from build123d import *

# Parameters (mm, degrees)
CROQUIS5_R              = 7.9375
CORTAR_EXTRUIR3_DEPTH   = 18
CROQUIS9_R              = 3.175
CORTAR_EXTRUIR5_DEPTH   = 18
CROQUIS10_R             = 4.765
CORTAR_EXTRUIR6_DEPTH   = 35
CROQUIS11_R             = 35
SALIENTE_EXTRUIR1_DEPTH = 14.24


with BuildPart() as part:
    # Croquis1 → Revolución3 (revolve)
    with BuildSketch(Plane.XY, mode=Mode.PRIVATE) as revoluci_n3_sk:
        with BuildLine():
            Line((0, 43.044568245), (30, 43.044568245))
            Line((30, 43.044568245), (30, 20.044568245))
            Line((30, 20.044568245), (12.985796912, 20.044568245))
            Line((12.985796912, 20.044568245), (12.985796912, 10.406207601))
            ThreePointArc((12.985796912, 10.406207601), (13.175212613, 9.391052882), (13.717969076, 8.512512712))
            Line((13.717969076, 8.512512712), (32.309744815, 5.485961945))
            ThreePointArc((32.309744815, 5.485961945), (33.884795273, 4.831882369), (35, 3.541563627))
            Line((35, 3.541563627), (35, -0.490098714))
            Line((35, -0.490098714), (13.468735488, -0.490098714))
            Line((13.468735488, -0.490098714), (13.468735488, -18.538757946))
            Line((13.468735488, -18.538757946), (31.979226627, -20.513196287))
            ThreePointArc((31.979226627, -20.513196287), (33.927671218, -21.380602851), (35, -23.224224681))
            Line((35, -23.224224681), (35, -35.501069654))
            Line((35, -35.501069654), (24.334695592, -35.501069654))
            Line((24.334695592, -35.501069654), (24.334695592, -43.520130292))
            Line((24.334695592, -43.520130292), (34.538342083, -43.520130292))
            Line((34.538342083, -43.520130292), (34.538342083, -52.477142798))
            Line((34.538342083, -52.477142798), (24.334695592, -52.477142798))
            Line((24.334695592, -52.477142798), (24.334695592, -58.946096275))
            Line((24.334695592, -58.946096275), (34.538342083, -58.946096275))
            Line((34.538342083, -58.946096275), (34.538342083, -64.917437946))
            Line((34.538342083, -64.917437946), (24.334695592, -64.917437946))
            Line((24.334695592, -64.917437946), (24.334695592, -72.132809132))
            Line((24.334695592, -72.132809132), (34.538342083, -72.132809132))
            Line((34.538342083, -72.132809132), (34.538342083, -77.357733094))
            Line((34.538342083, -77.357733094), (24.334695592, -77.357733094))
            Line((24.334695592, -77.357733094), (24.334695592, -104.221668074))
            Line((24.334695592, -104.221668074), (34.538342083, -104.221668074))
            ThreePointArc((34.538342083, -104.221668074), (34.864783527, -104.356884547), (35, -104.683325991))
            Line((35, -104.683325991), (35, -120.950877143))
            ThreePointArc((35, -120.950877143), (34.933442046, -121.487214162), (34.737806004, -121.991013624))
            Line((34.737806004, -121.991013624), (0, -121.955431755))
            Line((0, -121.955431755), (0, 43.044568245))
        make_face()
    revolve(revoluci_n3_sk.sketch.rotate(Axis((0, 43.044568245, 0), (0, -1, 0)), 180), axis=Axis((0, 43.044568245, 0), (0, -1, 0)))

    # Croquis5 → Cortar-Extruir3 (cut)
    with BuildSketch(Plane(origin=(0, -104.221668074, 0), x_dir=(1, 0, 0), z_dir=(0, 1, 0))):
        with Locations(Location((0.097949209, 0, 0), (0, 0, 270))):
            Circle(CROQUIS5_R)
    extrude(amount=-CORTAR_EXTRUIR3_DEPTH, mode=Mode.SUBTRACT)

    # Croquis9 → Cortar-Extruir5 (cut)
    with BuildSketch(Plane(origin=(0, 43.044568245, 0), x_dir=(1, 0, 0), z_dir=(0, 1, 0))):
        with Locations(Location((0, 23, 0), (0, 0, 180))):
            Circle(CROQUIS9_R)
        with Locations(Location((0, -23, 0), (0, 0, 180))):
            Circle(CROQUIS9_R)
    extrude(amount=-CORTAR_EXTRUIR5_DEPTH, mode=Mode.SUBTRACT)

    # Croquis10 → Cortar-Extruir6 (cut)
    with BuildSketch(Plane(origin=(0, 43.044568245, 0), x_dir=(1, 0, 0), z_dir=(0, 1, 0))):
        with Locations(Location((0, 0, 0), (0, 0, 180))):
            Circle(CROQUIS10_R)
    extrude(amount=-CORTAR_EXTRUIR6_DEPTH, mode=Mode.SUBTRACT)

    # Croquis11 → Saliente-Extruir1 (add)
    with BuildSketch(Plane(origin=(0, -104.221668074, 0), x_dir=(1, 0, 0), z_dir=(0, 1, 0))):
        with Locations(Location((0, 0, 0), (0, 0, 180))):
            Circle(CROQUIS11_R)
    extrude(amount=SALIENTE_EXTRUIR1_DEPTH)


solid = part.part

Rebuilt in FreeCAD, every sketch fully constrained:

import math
import FreeCAD as App
import Part
import Sketcher

doc = App.newDocument("Part")
body = doc.addObject("PartDesign::Body", "Body")

# Sketch on XY plane
sketch1 = doc.addObject("Sketcher::SketchObject", "Sketch")
body.addObject(sketch1)
sketch1.AttachmentSupport = (doc.XY_Plane, [""])
sketch1.MapMode = "FlatFace"
sketch1.addGeometry(Part.LineSegment(App.Vector(30, 43.04, 0), App.Vector(0, 43.04, 0)), False)
sketch1.addGeometry(Part.LineSegment(App.Vector(0, 43.04, 0), App.Vector(0, -121.96, 0)), False)
sketch1.addGeometry(Part.LineSegment(App.Vector(0, -121.96, 0), App.Vector(34.74, -121.99, 0)), False)
sketch1.addGeometry(Part.ArcOfCircle(Part.Circle(App.Vector(32.81, -120.95, 0), App.Vector(0, 0, 1), 2.19), math.radians(-28), math.radians(0)), False)
sketch1.addGeometry(Part.LineSegment(App.Vector(35, -120.95, 0), App.Vector(35, -104.68, 0)), False)
sketch1.addGeometry(Part.ArcOfCircle(Part.Circle(App.Vector(34.54, -104.68, 0), App.Vector(0, 0, 1), 0.46), math.radians(0), math.radians(90)), False)
sketch1.addGeometry(Part.LineSegment(App.Vector(34.54, -104.22, 0), App.Vector(24.33, -104.22, 0)), False)
sketch1.addGeometry(Part.LineSegment(App.Vector(24.33, -104.22, 0), App.Vector(24.33, -77.36, 0)), False)
sketch1.addGeometry(Part.LineSegment(App.Vector(24.33, -77.36, 0), App.Vector(34.54, -77.36, 0)), False)
sketch1.addGeometry(Part.LineSegment(App.Vector(34.54, -77.36, 0), App.Vector(34.54, -72.13, 0)), False)
sketch1.addGeometry(Part.LineSegment(App.Vector(34.54, -72.13, 0), App.Vector(24.33, -72.13, 0)), False)
sketch1.addGeometry(Part.LineSegment(App.Vector(24.33, -72.13, 0), App.Vector(24.33, -64.92, 0)), False)
sketch1.addGeometry(Part.LineSegment(App.Vector(24.33, -64.92, 0), App.Vector(34.54, -64.92, 0)), False)
sketch1.addGeometry(Part.LineSegment(App.Vector(34.54, -64.92, 0), App.Vector(34.54, -58.95, 0)), False)
sketch1.addGeometry(Part.LineSegment(App.Vector(34.54, -58.95, 0), App.Vector(24.33, -58.95, 0)), False)
sketch1.addGeometry(Part.LineSegment(App.Vector(24.33, -58.95, 0), App.Vector(24.33, -52.48, 0)), False)
sketch1.addGeometry(Part.LineSegment(App.Vector(24.33, -52.48, 0), App.Vector(34.54, -52.48, 0)), False)
sketch1.addGeometry(Part.LineSegment(App.Vector(34.54, -52.48, 0), App.Vector(34.54, -43.52, 0)), False)
sketch1.addGeometry(Part.LineSegment(App.Vector(34.54, -43.52, 0), App.Vector(24.33, -43.52, 0)), False)
sketch1.addGeometry(Part.LineSegment(App.Vector(24.33, -43.52, 0), App.Vector(24.33, -35.5, 0)), False)
sketch1.addGeometry(Part.LineSegment(App.Vector(24.33, -35.5, 0), App.Vector(35, -35.5, 0)), False)
sketch1.addGeometry(Part.LineSegment(App.Vector(35, -35.5, 0), App.Vector(35, -23.22, 0)), False)
sketch1.addGeometry(Part.ArcOfCircle(Part.Circle(App.Vector(31.61, -23.96, 0), App.Vector(0, 0, 1), 3.47), math.radians(12), math.radians(84)), False)
sketch1.addGeometry(Part.LineSegment(App.Vector(31.98, -20.51, 0), App.Vector(13.47, -18.54, 0)), False)
sketch1.addGeometry(Part.LineSegment(App.Vector(13.47, -18.54, 0), App.Vector(13.47, -0.49, 0)), False)
sketch1.addGeometry(Part.LineSegment(App.Vector(13.47, -0.49, 0), App.Vector(35, -0.49, 0)), False)
sketch1.addGeometry(Part.LineSegment(App.Vector(35, -0.49, 0), App.Vector(35, 3.54, 0)), False)
sketch1.addGeometry(Part.ArcOfCircle(Part.Circle(App.Vector(31.71, 1.83, 0), App.Vector(0, 0, 1), 3.71), math.radians(28), math.radians(81)), False)
sketch1.addGeometry(Part.LineSegment(App.Vector(32.31, 5.49, 0), App.Vector(13.72, 8.51, 0)), False)
sketch1.addGeometry(Part.ArcOfCircle(Part.Circle(App.Vector(15.8, 10.41, 0), App.Vector(0, 0, 1), 2.82), math.radians(-180), math.radians(-138)), False)
sketch1.addGeometry(Part.LineSegment(App.Vector(12.99, 10.41, 0), App.Vector(12.99, 20.04, 0)), False)
sketch1.addGeometry(Part.LineSegment(App.Vector(12.99, 20.04, 0), App.Vector(30, 20.04, 0)), False)
sketch1.addGeometry(Part.LineSegment(App.Vector(30, 20.04, 0), App.Vector(30, 43.04, 0)), False)
sketch1.addConstraint(Sketcher.Constraint("Coincident", 0, 2, 1, 1))
sketch1.addConstraint(Sketcher.Constraint("Coincident", 1, 2, 2, 1))
sketch1.addConstraint(Sketcher.Constraint("Coincident", 2, 2, 3, 1))
sketch1.addConstraint(Sketcher.Constraint("Tangent", 3, 2, 4, 1))
sketch1.addConstraint(Sketcher.Constraint("Tangent", 4, 2, 5, 1))
sketch1.addConstraint(Sketcher.Constraint("Tangent", 5, 2, 6, 1))
sketch1.addConstraint(Sketcher.Constraint("Coincident", 6, 2, 7, 1))
sketch1.addConstraint(Sketcher.Constraint("Coincident", 7, 2, 8, 1))
sketch1.addConstraint(Sketcher.Constraint("Coincident", 8, 2, 9, 1))
sketch1.addConstraint(Sketcher.Constraint("Coincident", 9, 2, 10, 1))
sketch1.addConstraint(Sketcher.Constraint("Coincident", 10, 2, 11, 1))
sketch1.addConstraint(Sketcher.Constraint("Coincident", 11, 2, 12, 1))
sketch1.addConstraint(Sketcher.Constraint("Coincident", 12, 2, 13, 1))
sketch1.addConstraint(Sketcher.Constraint("Coincident", 13, 2, 14, 1))
sketch1.addConstraint(Sketcher.Constraint("Coincident", 14, 2, 15, 1))
sketch1.addConstraint(Sketcher.Constraint("Coincident", 15, 2, 16, 1))
sketch1.addConstraint(Sketcher.Constraint("Coincident", 16, 2, 17, 1))
sketch1.addConstraint(Sketcher.Constraint("Coincident", 17, 2, 18, 1))
sketch1.addConstraint(Sketcher.Constraint("Coincident", 18, 2, 19, 1))
sketch1.addConstraint(Sketcher.Constraint("Coincident", 19, 2, 20, 1))
sketch1.addConstraint(Sketcher.Constraint("Coincident", 20, 2, 21, 1))
sketch1.addConstraint(Sketcher.Constraint("Coincident", 21, 2, 22, 1))
sketch1.addConstraint(Sketcher.Constraint("Tangent", 22, 2, 23, 1))
sketch1.addConstraint(Sketcher.Constraint("Coincident", 23, 2, 24, 1))
sketch1.addConstraint(Sketcher.Constraint("Coincident", 24, 2, 25, 1))
sketch1.addConstraint(Sketcher.Constraint("Coincident", 25, 2, 26, 1))
sketch1.addConstraint(Sketcher.Constraint("Coincident", 26, 2, 27, 1))
sketch1.addConstraint(Sketcher.Constraint("Tangent", 27, 2, 28, 1))
sketch1.addConstraint(Sketcher.Constraint("Coincident", 28, 2, 29, 2))
sketch1.addConstraint(Sketcher.Constraint("Tangent", 29, 1, 30, 1))
sketch1.addConstraint(Sketcher.Constraint("Coincident", 30, 2, 31, 1))
sketch1.addConstraint(Sketcher.Constraint("Coincident", 31, 2, 32, 1))
sketch1.addConstraint(Sketcher.Constraint("Coincident", 32, 2, 0, 1))
sketch1.addConstraint(Sketcher.Constraint("Horizontal", 0))
sketch1.addConstraint(Sketcher.Constraint("Vertical", 1))
sketch1.addConstraint(Sketcher.Constraint("Vertical", 4))
sketch1.addConstraint(Sketcher.Constraint("Horizontal", 6))
sketch1.addConstraint(Sketcher.Constraint("Vertical", 7))
sketch1.addConstraint(Sketcher.Constraint("Horizontal", 8))
sketch1.addConstraint(Sketcher.Constraint("Vertical", 9))
sketch1.addConstraint(Sketcher.Constraint("Horizontal", 10))
sketch1.addConstraint(Sketcher.Constraint("Vertical", 11))
sketch1.addConstraint(Sketcher.Constraint("Horizontal", 12))
sketch1.addConstraint(Sketcher.Constraint("Vertical", 13))
sketch1.addConstraint(Sketcher.Constraint("Horizontal", 14))
sketch1.addConstraint(Sketcher.Constraint("Vertical", 15))
sketch1.addConstraint(Sketcher.Constraint("Horizontal", 16))
sketch1.addConstraint(Sketcher.Constraint("Vertical", 17))
sketch1.addConstraint(Sketcher.Constraint("Horizontal", 18))
sketch1.addConstraint(Sketcher.Constraint("Vertical", 19))
sketch1.addConstraint(Sketcher.Constraint("Horizontal", 20))
sketch1.addConstraint(Sketcher.Constraint("Vertical", 21))
sketch1.addConstraint(Sketcher.Constraint("Vertical", 24))
sketch1.addConstraint(Sketcher.Constraint("Horizontal", 25))
sketch1.addConstraint(Sketcher.Constraint("Vertical", 26))
sketch1.addConstraint(Sketcher.Constraint("Vertical", 30))
sketch1.addConstraint(Sketcher.Constraint("Horizontal", 31))
sketch1.addConstraint(Sketcher.Constraint("Vertical", 32))
sketch1.addConstraint(Sketcher.Constraint("PointOnObject", 0, 2, -2))
sketch1.addConstraint(Sketcher.Constraint("Vertical", 5, 2, 8, 2))
sketch1.addConstraint(Sketcher.Constraint("Vertical", 7, 2, 10, 2))
sketch1.addConstraint(Sketcher.Constraint("Vertical", 9, 2, 12, 2))
sketch1.addConstraint(Sketcher.Constraint("Vertical", 11, 2, 14, 2))
sketch1.addConstraint(Sketcher.Constraint("Vertical", 13, 2, 16, 2))
sketch1.addConstraint(Sketcher.Constraint("Vertical", 15, 2, 18, 2))
sketch1.addConstraint(Sketcher.Constraint("Vertical", 4, 2, 20, 2))
sketch1.addConstraint(Sketcher.Constraint("Vertical", 21, 2, 25, 2))
sketch1.addConstraint(Sketcher.Constraint("DistanceX", 0, 2, 0, 1, 30.0))
sketch1.addConstraint(Sketcher.Constraint("DistanceY", 1, 2, 1, 1, 165.0))
sketch1.addConstraint(Sketcher.Constraint("DistanceY", 32, 1, 32, 2, 23.0))
sketch1.addConstraint(Sketcher.Constraint("DistanceX", -1, 1, 3, 2, 35.0))
sketch1.addConstraint(Sketcher.Constraint("Radius", 22, 3.467871))
sketch1.addConstraint(Sketcher.Constraint("Radius", 29, 2.815019))
sketch1.addConstraint(Sketcher.Constraint("Radius", 3, 2.194233))
sketch1.addConstraint(Sketcher.Constraint("Radius", 5, 0.461658))
sketch1.addConstraint(Sketcher.Constraint("Radius", 27, 3.705128))
sketch1.addConstraint(Sketcher.Constraint("DistanceY", 4, 1, 4, 2, 16.267551))
sketch1.addConstraint(Sketcher.Constraint("DistanceY", 11, 1, 11, 2, 7.215371))
sketch1.addConstraint(Sketcher.Constraint("DistanceY", 13, 1, 13, 2, 5.971342))
sketch1.addConstraint(Sketcher.Constraint("DistanceY", 19, 1, 19, 2, 8.019061))
sketch1.addConstraint(Sketcher.Constraint("DistanceY", 24, 1, 24, 2, 18.048659))
sketch1.addConstraint(Sketcher.Constraint("DistanceY", 30, 1, 30, 2, 9.638361))
sketch1.addConstraint(Sketcher.Constraint("DistanceY", 24, 2, -1, 1, 0.490099))
sketch1.addConstraint(Sketcher.Constraint("DistanceY", 5, 3, 27, 3, 106.512299))
sketch1.addConstraint(Sketcher.Constraint("DistanceY", 26, 2, 27, 2, 1.944398))
sketch1.addConstraint(Sketcher.Constraint("Distance", 28, 18.836511))
sketch1.addConstraint(Sketcher.Constraint("DistanceX", 6, 2, 6, 1, 10.203646))
sketch1.addConstraint(Sketcher.Constraint("DistanceX", 25, 1, 25, 2, 21.531265))
sketch1.addConstraint(Sketcher.Constraint("DistanceX", 31, 1, 31, 2, 17.014203))
sketch1.addConstraint(Sketcher.Constraint("DistanceY", 7, 1, 7, 2, 26.863935))
sketch1.addConstraint(Sketcher.Constraint("DistanceY", 9, 1, 9, 2, 5.224924))
sketch1.addConstraint(Sketcher.Constraint("DistanceY", 15, 1, 15, 2, 6.468953))
sketch1.addConstraint(Sketcher.Constraint("DistanceY", 17, 1, 17, 2, 8.957013))
sketch1.addConstraint(Sketcher.Constraint("DistanceY", 21, 1, 21, 2, 12.276845))
sketch1.addConstraint(Sketcher.Constraint("DistanceY", 26, 1, 26, 2, 4.031662))
sketch1.addConstraint(Sketcher.Constraint("DistanceX", -1, 1, 22, 3, 31.61141))
sketch1.addConstraint(Sketcher.Constraint("DistanceY", -1, 1, 0, 2, 43.044568))
sketch1.addConstraint(Sketcher.Constraint("DistanceX", 3, 3, 2, 2, 1.932039))
revolution = doc.addObject("PartDesign::Revolution", "Revolution")
body.addObject(revolution)
revolution.Profile = sketch1
revolution.ReferenceAxis = (sketch1, ["V_Axis"])
revolution.Angle = 360

# Sketch on XZ plane
sketch2 = doc.addObject("Sketcher::SketchObject", "Sketch001")
body.addObject(sketch2)
sketch2.AttachmentSupport = (doc.XZ_Plane, [""])
sketch2.MapMode = "FlatFace"
sketch2.AttachmentOffset = App.Placement(App.Vector(0, 0, 104.221668), App.Rotation())
sketch2.addGeometry(Part.Circle(App.Vector(0, 0, 0), App.Vector(0, 0, 1), 8), False)
sketch2.addConstraint(Sketcher.Constraint("PointOnObject", 0, 3, -1))
sketch2.addConstraint(Sketcher.Constraint("Diameter", 0, 15.875))
sketch2.addConstraint(Sketcher.Constraint("DistanceX", -1, 1, 0, 3, 0.097949))
pocket1 = doc.addObject("PartDesign::Pocket", "Pocket")
body.addObject(pocket1)
pocket1.Profile = sketch2
pocket1.Length = 18
pocket1.Reversed = True

# Sketch on XZ plane
sketch3 = doc.addObject("Sketcher::SketchObject", "Sketch002")
body.addObject(sketch3)
sketch3.AttachmentSupport = (doc.XZ_Plane, [""])
sketch3.MapMode = "FlatFace"
sketch3.AttachmentOffset = App.Placement(App.Vector(0, 0, -43.044568), App.Rotation())
sketch3.addGeometry(Part.Circle(App.Vector(0, -23, 0), App.Vector(0, 0, 1), 3.2), False)
sketch3.addGeometry(Part.Circle(App.Vector(0, 23, 0), App.Vector(0, 0, 1), 3.2), False)
sketch3.addConstraint(Sketcher.Constraint("Equal", 0, 1))
sketch3.addConstraint(Sketcher.Constraint("Symmetric", 0, 3, 1, 3, -1, 1))
sketch3.addConstraint(Sketcher.Constraint("PointOnObject", 0, 3, -2))
sketch3.addConstraint(Sketcher.Constraint("Diameter", 0, 6.35))
sketch3.addConstraint(Sketcher.Constraint("DistanceY", 0, 3, -1, 1, 23.0))
pocket2 = doc.addObject("PartDesign::Pocket", "Pocket001")
body.addObject(pocket2)
pocket2.Profile = sketch3
pocket2.Length = 18
pocket2.Reversed = True

# Sketch on XZ plane
sketch4 = doc.addObject("Sketcher::SketchObject", "Sketch003")
body.addObject(sketch4)
sketch4.AttachmentSupport = (doc.XZ_Plane, [""])
sketch4.MapMode = "FlatFace"
sketch4.AttachmentOffset = App.Placement(App.Vector(0, 0, -43.044568), App.Rotation())
sketch4.addGeometry(Part.Circle(App.Vector(0, 0, 0), App.Vector(0, 0, 1), 4.8), False)
sketch4.addConstraint(Sketcher.Constraint("Coincident", 0, 3, -1, 1))
sketch4.addConstraint(Sketcher.Constraint("Diameter", 0, 9.53))
pocket3 = doc.addObject("PartDesign::Pocket", "Pocket002")
body.addObject(pocket3)
pocket3.Profile = sketch4
pocket3.Length = 35
pocket3.Reversed = True

# Sketch on XZ plane
sketch5 = doc.addObject("Sketcher::SketchObject", "Sketch004")
body.addObject(sketch5)
sketch5.AttachmentSupport = (doc.XZ_Plane, [""])
sketch5.MapMode = "FlatFace"
sketch5.AttachmentOffset = App.Placement(App.Vector(0, 0, 104.221668), App.Rotation())
sketch5.addGeometry(Part.Circle(App.Vector(0, 0, 0), App.Vector(0, 0, 1), 35), False)
sketch5.addConstraint(Sketcher.Constraint("Coincident", 0, 3, -1, 1))
sketch5.addConstraint(Sketcher.Constraint("Diameter", 0, 70.0))
pad1 = doc.addObject("PartDesign::Pad", "Pad")
body.addObject(pad1)
pad1.Profile = sketch5
pad1.Length = 14.24
pad1.Reversed = True

doc.recompute()
